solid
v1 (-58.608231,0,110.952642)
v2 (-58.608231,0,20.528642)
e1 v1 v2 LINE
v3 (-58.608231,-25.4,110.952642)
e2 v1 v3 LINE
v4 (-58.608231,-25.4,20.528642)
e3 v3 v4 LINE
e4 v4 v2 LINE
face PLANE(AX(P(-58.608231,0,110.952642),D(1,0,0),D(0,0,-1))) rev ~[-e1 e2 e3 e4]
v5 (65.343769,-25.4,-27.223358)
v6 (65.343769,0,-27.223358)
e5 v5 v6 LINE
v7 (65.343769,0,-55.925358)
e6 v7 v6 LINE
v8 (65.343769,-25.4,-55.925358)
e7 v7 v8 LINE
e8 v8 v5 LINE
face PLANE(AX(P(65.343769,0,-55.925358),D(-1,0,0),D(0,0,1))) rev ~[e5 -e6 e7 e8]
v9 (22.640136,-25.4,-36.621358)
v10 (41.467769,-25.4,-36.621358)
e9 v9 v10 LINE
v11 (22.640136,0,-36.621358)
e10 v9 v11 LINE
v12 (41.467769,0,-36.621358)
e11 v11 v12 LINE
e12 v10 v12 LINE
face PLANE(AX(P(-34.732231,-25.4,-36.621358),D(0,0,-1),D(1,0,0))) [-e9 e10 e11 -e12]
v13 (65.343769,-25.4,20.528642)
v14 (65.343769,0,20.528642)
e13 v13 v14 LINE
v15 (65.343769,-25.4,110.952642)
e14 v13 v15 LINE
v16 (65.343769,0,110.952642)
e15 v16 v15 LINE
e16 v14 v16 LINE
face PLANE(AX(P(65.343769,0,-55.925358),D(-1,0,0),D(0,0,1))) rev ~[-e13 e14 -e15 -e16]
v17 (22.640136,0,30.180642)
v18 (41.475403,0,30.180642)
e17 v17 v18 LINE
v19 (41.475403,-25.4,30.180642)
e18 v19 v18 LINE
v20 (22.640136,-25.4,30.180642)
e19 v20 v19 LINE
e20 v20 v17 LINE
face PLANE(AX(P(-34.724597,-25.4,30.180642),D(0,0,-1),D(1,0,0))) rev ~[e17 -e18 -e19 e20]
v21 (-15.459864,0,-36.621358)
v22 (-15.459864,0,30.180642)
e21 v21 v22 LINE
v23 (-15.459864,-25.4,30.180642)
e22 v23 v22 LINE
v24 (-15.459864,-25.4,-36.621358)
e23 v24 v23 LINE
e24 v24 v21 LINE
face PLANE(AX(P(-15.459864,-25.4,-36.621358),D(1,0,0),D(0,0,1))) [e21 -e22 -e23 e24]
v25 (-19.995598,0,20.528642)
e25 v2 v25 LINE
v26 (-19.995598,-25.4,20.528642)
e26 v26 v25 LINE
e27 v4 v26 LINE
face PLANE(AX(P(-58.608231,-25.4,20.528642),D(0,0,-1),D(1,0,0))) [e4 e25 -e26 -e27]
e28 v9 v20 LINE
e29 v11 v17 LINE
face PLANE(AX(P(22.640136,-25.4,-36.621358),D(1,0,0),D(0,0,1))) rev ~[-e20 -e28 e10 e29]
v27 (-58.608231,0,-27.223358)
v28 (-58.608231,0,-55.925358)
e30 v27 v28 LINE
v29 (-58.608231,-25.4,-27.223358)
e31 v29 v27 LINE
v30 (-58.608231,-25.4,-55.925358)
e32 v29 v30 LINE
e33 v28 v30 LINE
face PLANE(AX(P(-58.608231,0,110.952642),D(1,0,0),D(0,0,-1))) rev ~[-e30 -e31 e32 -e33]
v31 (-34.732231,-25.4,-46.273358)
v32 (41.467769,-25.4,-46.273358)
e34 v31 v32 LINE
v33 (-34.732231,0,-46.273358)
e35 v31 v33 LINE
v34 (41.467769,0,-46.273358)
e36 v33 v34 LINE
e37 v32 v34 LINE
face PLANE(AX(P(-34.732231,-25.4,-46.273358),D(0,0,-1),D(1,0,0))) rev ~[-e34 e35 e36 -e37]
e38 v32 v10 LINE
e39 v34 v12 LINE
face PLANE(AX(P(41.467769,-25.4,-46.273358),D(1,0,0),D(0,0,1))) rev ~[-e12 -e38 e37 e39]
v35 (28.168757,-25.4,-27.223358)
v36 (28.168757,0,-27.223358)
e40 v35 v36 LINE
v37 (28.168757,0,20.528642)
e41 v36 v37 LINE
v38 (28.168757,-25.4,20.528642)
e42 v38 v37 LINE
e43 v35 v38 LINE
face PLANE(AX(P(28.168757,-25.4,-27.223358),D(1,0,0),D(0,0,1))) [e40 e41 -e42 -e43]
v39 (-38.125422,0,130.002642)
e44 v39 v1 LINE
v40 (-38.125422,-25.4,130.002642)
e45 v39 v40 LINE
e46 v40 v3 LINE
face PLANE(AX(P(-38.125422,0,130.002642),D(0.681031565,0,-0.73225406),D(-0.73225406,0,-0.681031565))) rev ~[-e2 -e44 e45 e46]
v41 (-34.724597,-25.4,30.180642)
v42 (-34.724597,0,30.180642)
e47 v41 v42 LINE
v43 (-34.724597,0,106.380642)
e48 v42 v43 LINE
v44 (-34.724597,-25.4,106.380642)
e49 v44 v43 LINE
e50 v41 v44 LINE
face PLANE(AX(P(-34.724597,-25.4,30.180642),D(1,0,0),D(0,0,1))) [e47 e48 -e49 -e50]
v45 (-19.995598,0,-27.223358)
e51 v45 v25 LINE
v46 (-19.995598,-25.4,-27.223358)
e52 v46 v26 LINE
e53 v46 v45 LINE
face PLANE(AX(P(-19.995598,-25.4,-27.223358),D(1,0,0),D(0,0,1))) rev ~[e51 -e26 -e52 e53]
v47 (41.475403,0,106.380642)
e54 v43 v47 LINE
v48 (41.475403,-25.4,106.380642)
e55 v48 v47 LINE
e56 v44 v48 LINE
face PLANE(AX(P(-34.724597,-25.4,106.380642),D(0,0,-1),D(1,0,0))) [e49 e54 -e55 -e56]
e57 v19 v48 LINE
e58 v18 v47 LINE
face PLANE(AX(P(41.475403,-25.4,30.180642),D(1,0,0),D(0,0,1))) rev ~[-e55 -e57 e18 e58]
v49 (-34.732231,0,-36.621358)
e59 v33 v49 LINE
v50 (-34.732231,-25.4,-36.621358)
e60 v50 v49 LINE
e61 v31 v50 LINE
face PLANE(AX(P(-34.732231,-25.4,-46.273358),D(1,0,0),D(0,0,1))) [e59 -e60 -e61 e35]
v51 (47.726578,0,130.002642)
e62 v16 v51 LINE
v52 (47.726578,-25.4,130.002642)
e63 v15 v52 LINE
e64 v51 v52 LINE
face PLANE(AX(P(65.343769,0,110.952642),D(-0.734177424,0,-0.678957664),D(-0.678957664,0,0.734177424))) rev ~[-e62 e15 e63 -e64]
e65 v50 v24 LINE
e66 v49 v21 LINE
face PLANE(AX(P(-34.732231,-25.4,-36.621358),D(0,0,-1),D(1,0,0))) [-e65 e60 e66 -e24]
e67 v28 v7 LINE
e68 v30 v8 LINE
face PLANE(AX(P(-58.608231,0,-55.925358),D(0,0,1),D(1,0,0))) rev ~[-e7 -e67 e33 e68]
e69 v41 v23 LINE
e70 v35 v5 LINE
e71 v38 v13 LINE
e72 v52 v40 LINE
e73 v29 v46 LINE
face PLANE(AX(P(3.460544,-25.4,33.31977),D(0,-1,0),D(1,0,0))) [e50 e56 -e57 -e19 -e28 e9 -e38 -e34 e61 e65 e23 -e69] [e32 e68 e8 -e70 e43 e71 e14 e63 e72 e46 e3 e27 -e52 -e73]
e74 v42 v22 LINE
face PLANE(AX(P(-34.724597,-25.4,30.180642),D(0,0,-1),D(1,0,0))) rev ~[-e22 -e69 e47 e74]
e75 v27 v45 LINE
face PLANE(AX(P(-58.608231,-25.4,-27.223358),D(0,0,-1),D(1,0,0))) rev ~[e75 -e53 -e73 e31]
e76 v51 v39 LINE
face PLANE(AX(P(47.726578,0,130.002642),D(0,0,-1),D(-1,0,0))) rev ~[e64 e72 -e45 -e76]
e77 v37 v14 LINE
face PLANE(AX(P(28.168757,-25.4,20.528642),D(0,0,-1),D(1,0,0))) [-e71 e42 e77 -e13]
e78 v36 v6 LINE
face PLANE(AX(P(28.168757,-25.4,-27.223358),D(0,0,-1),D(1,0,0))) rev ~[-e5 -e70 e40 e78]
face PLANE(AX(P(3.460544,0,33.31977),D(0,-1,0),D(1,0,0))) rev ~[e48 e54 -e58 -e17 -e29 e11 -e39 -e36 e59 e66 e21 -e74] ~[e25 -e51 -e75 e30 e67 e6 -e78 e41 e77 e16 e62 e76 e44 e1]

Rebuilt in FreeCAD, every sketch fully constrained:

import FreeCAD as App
import Part
import Sketcher
from FreeCAD import Vector
Q = App.Units.Quantity

doc = App.newDocument("Part")
body = doc.addObject("PartDesign::Body", "Body")

# Sketch on XZ plane
sketch1 = body.newObject("Sketcher::SketchObject", "Sketch")
sketch1.AttachmentSupport = (doc.getObject("XZ_Plane"), [""])
sketch1.MapMode = "FlatFace"
sketch1.addGeometry([
    Part.LineSegment(Vector(-58.608231, 110.952642, 0), Vector(-58.608231, -55.925358, 0)),  # 0
    Part.LineSegment(Vector(-58.608231, -55.925358, 0), Vector(65.343769, -55.925358, 0)),  # 1
    Part.LineSegment(Vector(65.343769, -55.925358, 0), Vector(65.343769, 110.952642, 0)),  # 2
    Part.LineSegment(Vector(65.343769, 110.952642, 0), Vector(47.726578, 130.002642, 0)),  # 3
    Part.LineSegment(Vector(47.726578, 130.002642, 0), Vector(-38.125422, 130.002642, 0)),  # 4
    Part.LineSegment(Vector(-38.125422, 130.002642, 0), Vector(-58.608231, 110.952642, 0)),  # 5
], False)
sketch1.addConstraint([
    Sketcher.Constraint("Coincident", 0, 2, 1, 1),
    Sketcher.Constraint("Coincident", 1, 2, 2, 1),
    Sketcher.Constraint("Coincident", 2, 2, 3, 1),
    Sketcher.Constraint("Coincident", 3, 2, 4, 1),
    Sketcher.Constraint("Coincident", 4, 2, 5, 1),
    Sketcher.Constraint("Coincident", 5, 2, 0, 1),
    Sketcher.Constraint("Vertical", 0),
    Sketcher.Constraint("Horizontal", 1),
    Sketcher.Constraint("Vertical", 2),
    Sketcher.Constraint("Horizontal", 4),
    Sketcher.Constraint("Horizontal", 2, 2, 5, 2),
    Sketcher.Constraint("DistanceX", 1, 1, 1, 2, Q("4.88 in")),
    Sketcher.Constraint("DistanceX", 4, 2, 4, 1, Q("3.38 in")),
    Sketcher.Constraint("DistanceY", 0, 2, 0, 1, Q("6.57 in")),
    Sketcher.Constraint("DistanceY", 2, 2, 3, 2, Q("0.75 in")),
    Sketcher.Constraint("Distance", 5, 27.972272),
    Sketcher.Constraint("DistanceX", 0, 2, -1, 1, 58.608231),
    Sketcher.Constraint("DistanceY", 0, 2, -1, 1, 55.925358),
])
pad1 = body.newObject("PartDesign::Pad", "Pad")
pad1.Profile = sketch1
pad1.Length = Q("1 in")

# Sketch on XZ plane
sketch2 = body.newObject("Sketcher::SketchObject", "Sketch001")
sketch2.AttachmentSupport = (doc.getObject("XZ_Plane"), [""])
sketch2.MapMode = "FlatFace"
sketch2.AttachmentOffset = App.Placement(Vector(0, 0, 1 * 25.4), App.Rotation())
sketch2.addGeometry([
    Part.LineSegment(Vector(-34.732231, -36.621358, 0), Vector(-34.732231, -46.273358, 0)),
    Part.LineSegment(Vector(-34.732231, -46.273358, 0), Vector(41.467769, -46.273358, 0)),
    Part.LineSegment(Vector(41.467769, -46.273358, 0), Vector(41.467769, -36.621358, 0)),
    Part.LineSegment(Vector(41.467769, -36.621358, 0), Vector(-34.732231, -36.621358, 0)),
], False)
sketch2.addConstraint([
    Sketcher.Constraint("Coincident", 0, 2, 1, 1),
    Sketcher.Constraint("Coincident", 1, 2, 2, 1),
    Sketcher.Constraint("Coincident", 2, 2, 3, 1),
    Sketcher.Constraint("Coincident", 3, 2, 0, 1),
    Sketcher.Constraint("Vertical", 0),
    Sketcher.Constraint("Horizontal", 1),
    Sketcher.Constraint("Vertical", 2),
    Sketcher.Constraint("Horizontal", 3),
    Sketcher.Constraint("DistanceX", 1, 1, 1, 2, Q("3 in")),
    Sketcher.Constraint("DistanceY", 0, 2, 0, 1, Q("0.38 in")),
    Sketcher.Constraint("DistanceX", 0, 2, -1, 1, 34.732231),
    Sketcher.Constraint("DistanceY", 0, 2, -1, 1, 46.273358),
])
pocket1 = body.newObject("PartDesign::Pocket", "Pocket")
pocket1.Profile = sketch2
pocket1.Length = Q("1 in")

# Sketch on XZ plane
sketch3 = body.newObject("Sketcher::SketchObject", "Sketch002")
sketch3.AttachmentSupport = (doc.getObject("XZ_Plane"), [""])
sketch3.MapMode = "FlatFace"
sketch3.AttachmentOffset = App.Placement(Vector(0, 0, 1 * 25.4), App.Rotation())
sketch3.addGeometry([
    Part.LineSegment(Vector(-15.459864, 30.180642, 0), Vector(-15.459864, -36.621358, 0)),
    Part.LineSegment(Vector(-15.459864, -36.621358, 0), Vector(22.640136, -36.621358, 0)),
    Part.LineSegment(Vector(22.640136, -36.621358, 0), Vector(22.640136, 30.180642, 0)),
    Part.LineSegment(Vector(22.640136, 30.180642, 0), Vector(-15.459864, 30.180642, 0)),
], False)
sketch3.addConstraint([
    Sketcher.Constraint("Coincident", 0, 2, 1, 1),
    Sketcher.Constraint("Coincident", 1, 2, 2, 1),
    Sketcher.Constraint("Coincident", 2, 2, 3, 1),
    Sketcher.Constraint("Coincident", 3, 2, 0, 1),
    Sketcher.Constraint("Vertical", 0),
    Sketcher.Constraint("Horizontal", 1),
    Sketcher.Constraint("Vertical", 2),
    Sketcher.Constraint("Horizontal", 3),
    Sketcher.Constraint("DistanceX", 1, 1, 1, 2, Q("1.5 in")),
    Sketcher.Constraint("DistanceY", 0, 2, 0, 1, Q("2.63 in")),
    Sketcher.Constraint("DistanceY", 0, 2, -1, 1, 36.621358),
    Sketcher.Constraint("DistanceX", 0, 2, -1, 1, 15.459864),
])
pocket2 = body.newObject("PartDesign::Pocket", "Pocket001")
pocket2.Profile = sketch3
pocket2.Length = Q("1 in")

# Sketch on XZ plane
sketch4 = body.newObject("Sketcher::SketchObject", "Sketch003")
sketch4.AttachmentSupport = (doc.getObject("XZ_Plane"), [""])
sketch4.MapMode = "FlatFace"
sketch4.AttachmentOffset = App.Placement(Vector(0, 0, 1 * 25.4), App.Rotation())
sketch4.addGeometry([
    Part.LineSegment(Vector(-58.608231, 20.528642, 0), Vector(-58.608231, -27.223358, 0)),  # 0
    Part.LineSegment(Vector(-58.608231, -27.223358, 0), Vector(-19.995598, -27.223358, 0)),  # 1
    Part.LineSegment(Vector(-19.995598, -27.223358, 0), Vector(-19.995598, 20.528642, 0)),  # 2
    Part.LineSegment(Vector(-19.995598, 20.528642, 0), Vector(-58.608231, 20.528642, 0)),  # 3
    Part.LineSegment(Vector(28.168757, 20.528642, 0), Vector(28.168757, -27.223358, 0)),  # 4
    Part.LineSegment(Vector(28.168757, -27.223358, 0), Vector(65.343769, -27.223358, 0)),  # 5
    Part.LineSegment(Vector(65.343769, -27.223358, 0), Vector(65.343769, 20.528642, 0)),  # 6
    Part.LineSegment(Vector(65.343769, 20.528642, 0), Vector(28.168757, 20.528642, 0)),  # 7
], False)
sketch4.addConstraint([
    Sketcher.Constraint("Coincident", 0, 2, 1, 1),
    Sketcher.Constraint("Coincident", 1, 2, 2, 1),
    Sketcher.Constraint("Coincident", 2, 2, 3, 1),
    Sketcher.Constraint("Coincident", 3, 2, 0, 1),
    Sketcher.Constraint("Coincident", 4, 2, 5, 1),
    Sketcher.Constraint("Coincident", 5, 2, 6, 1),
    Sketcher.Constraint("Coincident", 6, 2, 7, 1),
    Sketcher.Constraint("Coincident", 7, 2, 4, 1),
    Sketcher.Constraint("Vertical", 0),
    Sketcher.Constraint("Horizontal", 1),
    Sketcher.Constraint("Vertical", 2),
    Sketcher.Constraint("Horizontal", 3),
    Sketcher.Constraint("Vertical", 4),
    Sketcher.Constraint("Horizontal", 5),
    Sketcher.Constraint("Vertical", 6),
    Sketcher.Constraint("Horizontal", 7),
    Sketcher.Constraint("Horizontal", 1, 2, 4, 2),
    Sketcher.Constraint("Horizontal", 3, 2, 6, 2),
    Sketcher.Constraint("DistanceY", 0, 2, 0, 1, Q("1.88 in")),
    Sketcher.Constraint("DistanceX", 0, 2, 5, 2, Q("4.88 in")),
    Sketcher.Constraint("DistanceX", 1, 2, -1, 1, 19.995598),
    Sketcher.Constraint("DistanceX", 1, 1, 1, 2, 38.612633),
    Sketcher.Constraint("DistanceX", 5, 1, 5, 2, 37.175012),
    Sketcher.Constraint("DistanceY", 0, 2, -1, 1, 27.223358),
])
pocket3 = body.newObject("PartDesign::Pocket", "Pocket002")
pocket3.Profile = sketch4
pocket3.Length = Q("1 in")

# Sketch on XZ plane
sketch5 = body.newObject("Sketcher::SketchObject", "Sketch004")
sketch5.AttachmentSupport = (doc.getObject("XZ_Plane"), [""])
sketch5.MapMode = "FlatFace"
sketch5.AttachmentOffset = App.Placement(Vector(0, 0, 1 * 25.4), App.Rotation())
sketch5.addGeometry([
    Part.LineSegment(Vector(-34.724597, 106.380642, 0), Vector(-34.724597, 30.180642, 0)),
    Part.LineSegment(Vector(-34.724597, 30.180642, 0), Vector(41.475403, 30.180642, 0)),
    Part.LineSegment(Vector(41.475403, 30.180642, 0), Vector(41.475403, 106.380642, 0)),
    Part.LineSegment(Vector(41.475403, 106.380642, 0), Vector(-34.724597, 106.380642, 0)),
], False)
sketch5.addConstraint([
    Sketcher.Constraint("Coincident", 0, 2, 1, 1),
    Sketcher.Constraint("Coincident", 1, 2, 2, 1),
    Sketcher.Constraint("Coincident", 2, 2, 3, 1),
    Sketcher.Constraint("Coincident", 3, 2, 0, 1),
    Sketcher.Constraint("Vertical", 0),
    Sketcher.Constraint("Horizontal", 1),
    Sketcher.Constraint("Vertical", 2),
    Sketcher.Constraint("Horizontal", 3),
    Sketcher.Constraint("Equal", 3, 0),
    Sketcher.Constraint("DistanceX", 1, 1, 1, 2, Q("3 in")),
    Sketcher.Constraint("DistanceY", -1, 1, 0, 2, 30.180642),
    Sketcher.Constraint("DistanceX", 0, 2, -1, 1, 34.724597),
])
pocket4 = body.newObject("PartDesign::Pocket", "Pocket003")
pocket4.Profile = sketch5
pocket4.Length = Q("1 in")

doc.recompute()
